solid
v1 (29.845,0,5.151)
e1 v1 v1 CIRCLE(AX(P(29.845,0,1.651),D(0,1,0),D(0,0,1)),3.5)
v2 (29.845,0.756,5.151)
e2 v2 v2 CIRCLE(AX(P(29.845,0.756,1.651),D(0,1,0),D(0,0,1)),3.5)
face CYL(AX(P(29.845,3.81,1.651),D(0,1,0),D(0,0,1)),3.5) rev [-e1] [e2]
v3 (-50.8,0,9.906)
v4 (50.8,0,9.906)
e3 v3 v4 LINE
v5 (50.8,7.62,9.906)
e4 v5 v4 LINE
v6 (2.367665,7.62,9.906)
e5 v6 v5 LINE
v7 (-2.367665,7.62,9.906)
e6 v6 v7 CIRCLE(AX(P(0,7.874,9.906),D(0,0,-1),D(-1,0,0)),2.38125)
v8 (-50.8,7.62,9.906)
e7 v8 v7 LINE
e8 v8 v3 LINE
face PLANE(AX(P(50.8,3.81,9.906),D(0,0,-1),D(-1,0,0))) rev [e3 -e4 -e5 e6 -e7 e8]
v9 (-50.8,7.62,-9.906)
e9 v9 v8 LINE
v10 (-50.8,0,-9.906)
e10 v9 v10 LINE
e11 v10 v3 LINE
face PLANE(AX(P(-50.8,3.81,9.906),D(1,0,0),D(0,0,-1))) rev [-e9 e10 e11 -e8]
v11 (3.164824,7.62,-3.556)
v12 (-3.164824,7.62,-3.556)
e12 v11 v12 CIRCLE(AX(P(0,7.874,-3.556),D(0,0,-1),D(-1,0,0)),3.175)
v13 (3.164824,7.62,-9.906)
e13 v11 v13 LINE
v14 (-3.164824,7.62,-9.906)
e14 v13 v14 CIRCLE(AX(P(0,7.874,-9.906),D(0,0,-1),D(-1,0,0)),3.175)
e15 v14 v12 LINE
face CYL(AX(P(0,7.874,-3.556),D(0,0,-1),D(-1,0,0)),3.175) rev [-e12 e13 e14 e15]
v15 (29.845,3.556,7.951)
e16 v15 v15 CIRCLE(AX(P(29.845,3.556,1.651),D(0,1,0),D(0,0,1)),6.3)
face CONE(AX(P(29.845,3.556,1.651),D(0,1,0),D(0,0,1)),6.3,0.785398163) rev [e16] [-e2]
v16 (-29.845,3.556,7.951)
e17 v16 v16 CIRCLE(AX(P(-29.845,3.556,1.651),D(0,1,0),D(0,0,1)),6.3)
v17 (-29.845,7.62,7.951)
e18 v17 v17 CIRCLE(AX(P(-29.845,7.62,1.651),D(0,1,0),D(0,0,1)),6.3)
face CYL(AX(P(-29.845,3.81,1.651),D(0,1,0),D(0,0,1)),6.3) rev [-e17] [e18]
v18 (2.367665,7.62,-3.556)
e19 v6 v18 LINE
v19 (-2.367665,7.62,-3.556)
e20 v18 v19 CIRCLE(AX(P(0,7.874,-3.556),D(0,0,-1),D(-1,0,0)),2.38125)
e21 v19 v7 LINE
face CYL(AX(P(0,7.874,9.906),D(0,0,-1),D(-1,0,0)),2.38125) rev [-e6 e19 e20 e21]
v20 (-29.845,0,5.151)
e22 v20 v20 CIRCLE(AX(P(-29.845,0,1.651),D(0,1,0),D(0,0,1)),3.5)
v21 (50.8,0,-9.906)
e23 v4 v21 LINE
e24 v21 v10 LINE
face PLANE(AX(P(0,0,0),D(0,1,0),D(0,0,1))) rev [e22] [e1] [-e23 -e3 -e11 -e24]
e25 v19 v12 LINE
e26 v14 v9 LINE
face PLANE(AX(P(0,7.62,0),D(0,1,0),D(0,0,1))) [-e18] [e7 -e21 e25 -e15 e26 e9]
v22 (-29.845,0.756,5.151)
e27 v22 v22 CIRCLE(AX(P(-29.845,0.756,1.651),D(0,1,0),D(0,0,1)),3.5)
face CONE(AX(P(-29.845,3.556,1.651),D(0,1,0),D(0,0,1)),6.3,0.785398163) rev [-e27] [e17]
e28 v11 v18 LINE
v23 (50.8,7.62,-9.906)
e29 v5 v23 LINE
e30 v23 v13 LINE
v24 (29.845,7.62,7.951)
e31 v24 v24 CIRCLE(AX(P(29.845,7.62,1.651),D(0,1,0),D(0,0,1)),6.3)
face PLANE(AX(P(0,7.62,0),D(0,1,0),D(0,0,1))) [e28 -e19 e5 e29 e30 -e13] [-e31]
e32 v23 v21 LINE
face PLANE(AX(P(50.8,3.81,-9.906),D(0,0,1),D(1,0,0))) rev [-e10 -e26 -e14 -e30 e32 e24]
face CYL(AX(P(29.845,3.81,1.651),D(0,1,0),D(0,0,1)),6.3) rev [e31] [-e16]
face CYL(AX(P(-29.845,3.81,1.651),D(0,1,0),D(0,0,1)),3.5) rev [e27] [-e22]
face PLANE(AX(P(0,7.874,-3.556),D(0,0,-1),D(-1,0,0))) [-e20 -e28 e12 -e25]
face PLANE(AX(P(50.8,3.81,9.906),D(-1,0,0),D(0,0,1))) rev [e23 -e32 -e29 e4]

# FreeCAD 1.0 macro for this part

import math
import FreeCAD as App
import Part
import Sketcher

V = App.Vector
Q = App.Units.Quantity

doc = App.newDocument("Part")
body = doc.addObject("PartDesign::Body", "Body")

# Sketch on XZ plane
sketch1 = doc.addObject("Sketcher::SketchObject", "Sketch")
body.addObject(sketch1)
sketch1.AttachmentSupport = (doc.XZ_Plane, [""])
sketch1.MapMode = "FlatFace"
sketch1.addGeometry([
    Part.LineSegment(V(-50.8, -9.906, 0), V(-50.8, 9.906, 0)),
    Part.LineSegment(V(-50.8, 9.906, 0), V(50.8, 9.906, 0)),
    Part.LineSegment(V(50.8, 9.906, 0), V(50.8, -9.906, 0)),
    Part.LineSegment(V(50.8, -9.906, 0), V(-50.8, -9.906, 0)),
], False)
sketch1.addConstraint([
    Sketcher.Constraint("Coincident", 0, 2, 1, 1),
    Sketcher.Constraint("Coincident", 1, 2, 2, 1),
    Sketcher.Constraint("Coincident", 2, 2, 3, 1),
    Sketcher.Constraint("Coincident", 3, 2, 0, 1),
    Sketcher.Constraint("Vertical", 0),
    Sketcher.Constraint("Horizontal", 1),
    Sketcher.Constraint("Vertical", 2),
    Sketcher.Constraint("Horizontal", 3),
    Sketcher.Constraint("Symmetric", 0, 2, 2, 2, -1, 1),
    Sketcher.Constraint("DistanceX", 1, 1, 1, 2, Q("4 in")),
    Sketcher.Constraint("DistanceY", 0, 1, 0, 2, Q("0.78 in")),
])
pad1 = doc.addObject("PartDesign::Pad", "Pad")
body.addObject(pad1)
pad1.Profile = sketch1
pad1.Length = Q("0.15 in")
pad1.Reversed = True

# Sketch on YZ plane
sketch2 = doc.addObject("Sketcher::SketchObject", "Sketch001")
body.addObject(sketch2)
sketch2.AttachmentSupport = (doc.YZ_Plane, [""])
sketch2.MapMode = "FlatFace"
sketch2.AttachmentOffset = App.Placement(V(0, 0, -1.175 * 25.4), App.Rotation())
sketch2.addGeometry([
    Part.LineSegment(V(0, 1.651, 0), V(3.81, 1.651, 0)),  # 0
    Part.LineSegment(V(3.81, 1.651, 0), V(3.81, 7.951, 0)),  # 1
    Part.LineSegment(V(3.81, 7.951, 0), V(3.556, 7.951, 0)),  # 2
    Part.LineSegment(V(3.556, 7.951, 0), V(0.756, 5.151, 0)),  # 3
    Part.LineSegment(V(0.756, 5.151, 0), V(0, 5.151, 0)),  # 4
    Part.LineSegment(V(0, 5.151, 0), V(0, 1.651, 0)),  # 5
], False)
sketch2.addGeometry(Part.LineSegment(V(3.81, 1.651, 0), V(0, 1.651, 0)), True)  # axis
sketch2.addConstraint([
    Sketcher.Constraint("Coincident", 0, 2, 1, 1),
    Sketcher.Constraint("Coincident", 1, 2, 2, 1),
    Sketcher.Constraint("Coincident", 2, 2, 3, 1),
    Sketcher.Constraint("Coincident", 3, 2, 4, 1),
    Sketcher.Constraint("Coincident", 4, 2, 5, 1),
    Sketcher.Constraint("Coincident", 5, 2, 0, 1),
    Sketcher.Constraint("Horizontal", 0),
    Sketcher.Constraint("Vertical", 1),
    Sketcher.Constraint("Horizontal", 2),
    Sketcher.Constraint("Horizontal", 4),
    Sketcher.Constraint("Vertical", 5),
    Sketcher.Constraint("Horizontal", 6),
    Sketcher.Constraint("Coincident", 6, 1, 0, 2),
    Sketcher.Constraint("PointOnObject", 4, 2, -2),
    Sketcher.Constraint("PointOnObject", 6, 2, -2),
    Sketcher.Constraint("Angle", 3, Q("-135 deg")),
    Sketcher.Constraint("DistanceX", 0, 1, 0, 2, Q("0.15 in")),
    Sketcher.Constraint("DistanceX", 2, 2, 2, 1, Q("0.01 in")),
    Sketcher.Constraint("DistanceY", -1, 1, 0, 2, Q("0.065 in")),
    Sketcher.Constraint("DistanceX", 4, 2, 4, 1, Q("0.756 mm")),
    Sketcher.Constraint("DistanceY", 1, 1, 1, 2, Q("6.3 mm")),
])
groove = doc.addObject("PartDesign::Groove", "Groove")
body.addObject(groove)
groove.Profile = sketch2
groove.ReferenceAxis = (sketch2, ["Axis0"])
groove.Angle = 360
doc.recompute()

linearpattern = doc.addObject("PartDesign::LinearPattern", "LinearPattern")
body.addObject(linearpattern)
linearpattern.Originals = [groove]
linearpattern.Direction = (doc.X_Axis, [""])
linearpattern.Mode = "offset"
linearpattern.Offset = Q("2.35 in")
linearpattern.Occurrences = 2
body.Tip = linearpattern

# Sketch on XZ plane
sketch3 = doc.addObject("Sketcher::SketchObject", "Sketch002")
body.addObject(sketch3)
sketch3.AttachmentSupport = (doc.XZ_Plane, [""])
sketch3.MapMode = "FlatFace"
sketch3.AttachmentOffset = App.Placement(V(0, 0, -0.15 * 25.4), App.Rotation())
sketch3.addGeometry([
    Part.LineSegment(V(-50.8, -9.906, 0), V(-50.8, 9.906, 0)),  # 0
    Part.LineSegment(V(-50.8, 9.906, 0), V(50.8, 9.906, 0)),  # 1
    Part.LineSegment(V(50.8, 9.906, 0), V(50.8, -9.906, 0)),  # 2
    Part.LineSegment(V(50.8, -9.906, 0), V(-50.8, -9.906, 0)),  # 3
    Part.Circle(V(-29.845, 1.651, 0), V(0, 0, 1), 6.3),  # 4
    Part.Circle(V(29.845, 1.651, 0), V(0, 0, 1), 6.3),  # 5
], False)
sketch3.addConstraint([
    Sketcher.Constraint("Coincident", 0, 2, 1, 1),
    Sketcher.Constraint("Coincident", 1, 2, 2, 1),
    Sketcher.Constraint("Coincident", 2, 2, 3, 1),
    Sketcher.Constraint("Coincident", 3, 2, 0, 1),
    Sketcher.Constraint("Vertical", 0),
    Sketcher.Constraint("Horizontal", 1),
    Sketcher.Constraint("Vertical", 2),
    Sketcher.Constraint("Horizontal", 3),
    Sketcher.Constraint("Equal", 4, 5),
    Sketcher.Constraint("Symmetric", 0, 2, 2, 2, -1, 1),
    Sketcher.Constraint("Symmetric", 4, 3, 5, 3, -2),
    Sketcher.Constraint("DistanceX", 1, 1, 1, 2, Q("4 in")),
    Sketcher.Constraint("DistanceY", 0, 1, 0, 2, Q("0.78 in")),
    Sketcher.Constraint("Diameter", 4, Q("12.6 mm")),
    Sketcher.Constraint("DistanceX", 4, 3, 5, 3, Q("2.35 in")),
    Sketcher.Constraint("DistanceY", -1, 1, 4, 3, Q("0.065 in")),
])
pad2 = doc.addObject("PartDesign::Pad", "Pad001")
body.addObject(pad2)
pad2.Profile = sketch3
pad2.Length = Q("0.15 in")
pad2.Reversed = True

# Sketch on XY plane
sketch4 = doc.addObject("Sketcher::SketchObject", "Sketch003")
body.addObject(sketch4)
sketch4.AttachmentSupport = (doc.XY_Plane, [""])
sketch4.MapMode = "FlatFace"
sketch4.AttachmentOffset = App.Placement(V(0, 0, -0.39 * 25.4), App.Rotation())
sketch4.addGeometry(Part.Circle(V(0, 7.874, 0), V(0, 0, 1), 3.175), False)
sketch4.addConstraint([
    Sketcher.Constraint("PointOnObject", 0, 3, -2),
    Sketcher.Constraint("Diameter", 0, Q("0.25 in")),
    Sketcher.Constraint("DistanceY", -1, 1, 0, 3, Q("0.31 in")),
])
pocket1 = doc.addObject("PartDesign::Pocket", "Pocket")
body.addObject(pocket1)
pocket1.Profile = sketch4
pocket1.Length = Q("0.25 in")
pocket1.Reversed = True

# Sketch on XY plane
sketch5 = doc.addObject("Sketcher::SketchObject", "Sketch004")
body.addObject(sketch5)
sketch5.AttachmentSupport = (doc.XY_Plane, [""])
sketch5.MapMode = "FlatFace"
sketch5.AttachmentOffset = App.Placement(V(0, 0, -0.14 * 25.4), App.Rotation())
sketch5.addGeometry([
    Part.ArcOfCircle(Part.Circle(V(0, 7.874, 0), V(0, 0, 1), 2.38125), math.radians(-173.876801), math.radians(-6.123199)),
    Part.ArcOfCircle(Part.Circle(V(0, 7.874, 0), V(0, 0, 1), 2.38125), math.radians(-180), math.radians(-173.876802)),
    Part.ArcOfCircle(Part.Circle(V(0, 7.874, 0), V(0, 0, 1), 2.38125), math.radians(-6.123199), math.radians(180)),
], False)
sketch5.addConstraint([
    Sketcher.Constraint("Tangent", 0, 1, 1, 2),
    Sketcher.Constraint("Tangent", 1, 1, 2, 2),
    Sketcher.Constraint("Tangent", 2, 1, 0, 2),
    Sketcher.Constraint("Symmetric", 0, 1, 2, 1, -2),
    Sketcher.Constraint("Horizontal", 2, 3, 1, 1),
    Sketcher.Constraint("Radius", 0, Q("0.09375 in")),
    Sketcher.Constraint("DistanceY", -1, 1, 0, 1, Q("0.3 in")),
    Sketcher.Constraint("DistanceY", -1, 1, 0, 3, Q("0.31 in")),
])
pocket2 = doc.addObject("PartDesign::Pocket", "Pocket001")
body.addObject(pocket2)
pocket2.Profile = sketch5
pocket2.Type = "ThroughAll"
pocket2.Midplane = True

doc.recompute()
